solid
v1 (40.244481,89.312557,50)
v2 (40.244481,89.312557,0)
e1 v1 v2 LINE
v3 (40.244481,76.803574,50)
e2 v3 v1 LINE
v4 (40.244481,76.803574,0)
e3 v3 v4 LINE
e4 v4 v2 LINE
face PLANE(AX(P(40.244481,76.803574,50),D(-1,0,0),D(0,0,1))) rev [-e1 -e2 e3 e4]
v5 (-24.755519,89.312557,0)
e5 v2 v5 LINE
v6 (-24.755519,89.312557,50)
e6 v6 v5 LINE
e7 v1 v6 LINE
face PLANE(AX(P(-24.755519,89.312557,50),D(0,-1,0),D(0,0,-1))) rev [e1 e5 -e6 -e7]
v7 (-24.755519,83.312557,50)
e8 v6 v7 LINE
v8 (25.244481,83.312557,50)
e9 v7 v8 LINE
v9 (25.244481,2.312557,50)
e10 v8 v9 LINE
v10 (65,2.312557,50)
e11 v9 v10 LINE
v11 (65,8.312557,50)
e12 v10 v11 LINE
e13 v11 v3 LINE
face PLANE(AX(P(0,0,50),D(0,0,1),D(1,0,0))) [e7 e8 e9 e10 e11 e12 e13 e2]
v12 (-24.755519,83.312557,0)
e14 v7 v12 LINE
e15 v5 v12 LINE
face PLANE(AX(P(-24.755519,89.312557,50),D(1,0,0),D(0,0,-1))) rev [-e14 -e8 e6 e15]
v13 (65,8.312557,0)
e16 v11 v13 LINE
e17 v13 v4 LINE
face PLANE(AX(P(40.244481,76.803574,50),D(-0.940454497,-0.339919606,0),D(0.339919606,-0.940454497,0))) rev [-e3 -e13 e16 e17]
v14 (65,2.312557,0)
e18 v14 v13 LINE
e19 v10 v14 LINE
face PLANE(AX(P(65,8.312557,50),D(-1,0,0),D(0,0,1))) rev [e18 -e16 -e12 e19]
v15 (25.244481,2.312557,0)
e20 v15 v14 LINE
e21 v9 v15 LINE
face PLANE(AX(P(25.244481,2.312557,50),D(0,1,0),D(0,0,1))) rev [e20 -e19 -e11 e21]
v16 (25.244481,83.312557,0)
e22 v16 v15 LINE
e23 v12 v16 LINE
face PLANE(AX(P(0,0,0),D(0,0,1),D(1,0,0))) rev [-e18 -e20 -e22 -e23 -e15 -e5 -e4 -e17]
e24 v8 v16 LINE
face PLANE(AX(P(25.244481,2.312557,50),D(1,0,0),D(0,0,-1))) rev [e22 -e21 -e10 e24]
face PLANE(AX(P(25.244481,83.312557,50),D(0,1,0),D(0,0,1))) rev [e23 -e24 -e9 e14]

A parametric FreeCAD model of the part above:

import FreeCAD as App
import Part
import Sketcher

V = App.Vector
Q = App.Units.Quantity


def add_polygon(sketch, points):
    """Adds a closed chain of lines whose ends are joined by coincident constraints."""
    first, n = sketch.GeometryCount, len(points)
    for a, b in zip(points, points[1:] + points[:1]):
        sketch.addGeometry(Part.LineSegment(App.Vector(*a, 0), App.Vector(*b, 0)), False)
    for i in range(n):
        sketch.addConstraint(Sketcher.Constraint("Coincident", first + i, 2, first + (i + 1) % n, 1))

doc = App.newDocument("Part")
params = doc.addObject("Spreadsheet::Sheet", "Params")
for row, (alias, value) in enumerate([
    ("sketch1_width", "65 mm"),
    ("sketch1_width2", "50 mm"),
    ("sketch1_height", "6 mm"),
    ("sketch1_height2", "81 mm"),
    ("pad1_length", "50 mm"),
], start=1):
    params.set(f"A{row}", alias)
    params.set(f"B{row}", "=" + value)
    params.setAlias(f"B{row}", alias)

body = doc.addObject("PartDesign::Body", "Body")

# Sketch on XY plane
sketch1 = doc.addObject("Sketcher::SketchObject", "Sketch")
body.addObject(sketch1)
sketch1.AttachmentSupport = (doc.XY_Plane, [""])
sketch1.MapMode = "FlatFace"
add_polygon(sketch1, [(25, 2), (65, 2), (65, 8), (40, 77), (40, 89), (-25, 89), (-25, 83), (25, 83)])  # lines 0-7
sketch1.addConstraint([
    Sketcher.Constraint("Horizontal", 0),
    Sketcher.Constraint("Vertical", 1),
    Sketcher.Constraint("Vertical", 3),
    Sketcher.Constraint("Horizontal", 4),
    Sketcher.Constraint("Vertical", 5),
    Sketcher.Constraint("Horizontal", 6),
    Sketcher.Constraint("Vertical", 7),
    Sketcher.Constraint("Equal", 1, 5),
    Sketcher.Constraint("DistanceX", 4, 2, 4, 1, Q("65 mm")),
    Sketcher.Constraint("DistanceX", 6, 1, 6, 2, Q("50 mm")),
    Sketcher.Constraint("DistanceY", 1, 1, 1, 2, Q("6 mm")),
    Sketcher.Constraint("DistanceY", 7, 2, 7, 1, Q("81 mm")),
    Sketcher.Constraint("DistanceX", -1, 1, 0, 2, Q("65 mm")),
    Sketcher.Constraint("DistanceX", 0, 1, 0, 2, Q("39.755519 mm")),
    Sketcher.Constraint("Distance", 2, Q("72.827571 mm")),
    Sketcher.Constraint("DistanceY", -1, 1, 0, 2, Q("2.312557 mm")),
])
sketch1.setExpression("Constraints[16]", "Params.sketch1_width")
sketch1.setExpression("Constraints[17]", "Params.sketch1_width2")
sketch1.setExpression("Constraints[18]", "Params.sketch1_height")
sketch1.setExpression("Constraints[19]", "Params.sketch1_height2")
pad1 = doc.addObject("PartDesign::Pad", "Pad")
body.addObject(pad1)
pad1.Profile = sketch1
pad1.setExpression("Length", "Params.pad1_length")

doc.recompute()
